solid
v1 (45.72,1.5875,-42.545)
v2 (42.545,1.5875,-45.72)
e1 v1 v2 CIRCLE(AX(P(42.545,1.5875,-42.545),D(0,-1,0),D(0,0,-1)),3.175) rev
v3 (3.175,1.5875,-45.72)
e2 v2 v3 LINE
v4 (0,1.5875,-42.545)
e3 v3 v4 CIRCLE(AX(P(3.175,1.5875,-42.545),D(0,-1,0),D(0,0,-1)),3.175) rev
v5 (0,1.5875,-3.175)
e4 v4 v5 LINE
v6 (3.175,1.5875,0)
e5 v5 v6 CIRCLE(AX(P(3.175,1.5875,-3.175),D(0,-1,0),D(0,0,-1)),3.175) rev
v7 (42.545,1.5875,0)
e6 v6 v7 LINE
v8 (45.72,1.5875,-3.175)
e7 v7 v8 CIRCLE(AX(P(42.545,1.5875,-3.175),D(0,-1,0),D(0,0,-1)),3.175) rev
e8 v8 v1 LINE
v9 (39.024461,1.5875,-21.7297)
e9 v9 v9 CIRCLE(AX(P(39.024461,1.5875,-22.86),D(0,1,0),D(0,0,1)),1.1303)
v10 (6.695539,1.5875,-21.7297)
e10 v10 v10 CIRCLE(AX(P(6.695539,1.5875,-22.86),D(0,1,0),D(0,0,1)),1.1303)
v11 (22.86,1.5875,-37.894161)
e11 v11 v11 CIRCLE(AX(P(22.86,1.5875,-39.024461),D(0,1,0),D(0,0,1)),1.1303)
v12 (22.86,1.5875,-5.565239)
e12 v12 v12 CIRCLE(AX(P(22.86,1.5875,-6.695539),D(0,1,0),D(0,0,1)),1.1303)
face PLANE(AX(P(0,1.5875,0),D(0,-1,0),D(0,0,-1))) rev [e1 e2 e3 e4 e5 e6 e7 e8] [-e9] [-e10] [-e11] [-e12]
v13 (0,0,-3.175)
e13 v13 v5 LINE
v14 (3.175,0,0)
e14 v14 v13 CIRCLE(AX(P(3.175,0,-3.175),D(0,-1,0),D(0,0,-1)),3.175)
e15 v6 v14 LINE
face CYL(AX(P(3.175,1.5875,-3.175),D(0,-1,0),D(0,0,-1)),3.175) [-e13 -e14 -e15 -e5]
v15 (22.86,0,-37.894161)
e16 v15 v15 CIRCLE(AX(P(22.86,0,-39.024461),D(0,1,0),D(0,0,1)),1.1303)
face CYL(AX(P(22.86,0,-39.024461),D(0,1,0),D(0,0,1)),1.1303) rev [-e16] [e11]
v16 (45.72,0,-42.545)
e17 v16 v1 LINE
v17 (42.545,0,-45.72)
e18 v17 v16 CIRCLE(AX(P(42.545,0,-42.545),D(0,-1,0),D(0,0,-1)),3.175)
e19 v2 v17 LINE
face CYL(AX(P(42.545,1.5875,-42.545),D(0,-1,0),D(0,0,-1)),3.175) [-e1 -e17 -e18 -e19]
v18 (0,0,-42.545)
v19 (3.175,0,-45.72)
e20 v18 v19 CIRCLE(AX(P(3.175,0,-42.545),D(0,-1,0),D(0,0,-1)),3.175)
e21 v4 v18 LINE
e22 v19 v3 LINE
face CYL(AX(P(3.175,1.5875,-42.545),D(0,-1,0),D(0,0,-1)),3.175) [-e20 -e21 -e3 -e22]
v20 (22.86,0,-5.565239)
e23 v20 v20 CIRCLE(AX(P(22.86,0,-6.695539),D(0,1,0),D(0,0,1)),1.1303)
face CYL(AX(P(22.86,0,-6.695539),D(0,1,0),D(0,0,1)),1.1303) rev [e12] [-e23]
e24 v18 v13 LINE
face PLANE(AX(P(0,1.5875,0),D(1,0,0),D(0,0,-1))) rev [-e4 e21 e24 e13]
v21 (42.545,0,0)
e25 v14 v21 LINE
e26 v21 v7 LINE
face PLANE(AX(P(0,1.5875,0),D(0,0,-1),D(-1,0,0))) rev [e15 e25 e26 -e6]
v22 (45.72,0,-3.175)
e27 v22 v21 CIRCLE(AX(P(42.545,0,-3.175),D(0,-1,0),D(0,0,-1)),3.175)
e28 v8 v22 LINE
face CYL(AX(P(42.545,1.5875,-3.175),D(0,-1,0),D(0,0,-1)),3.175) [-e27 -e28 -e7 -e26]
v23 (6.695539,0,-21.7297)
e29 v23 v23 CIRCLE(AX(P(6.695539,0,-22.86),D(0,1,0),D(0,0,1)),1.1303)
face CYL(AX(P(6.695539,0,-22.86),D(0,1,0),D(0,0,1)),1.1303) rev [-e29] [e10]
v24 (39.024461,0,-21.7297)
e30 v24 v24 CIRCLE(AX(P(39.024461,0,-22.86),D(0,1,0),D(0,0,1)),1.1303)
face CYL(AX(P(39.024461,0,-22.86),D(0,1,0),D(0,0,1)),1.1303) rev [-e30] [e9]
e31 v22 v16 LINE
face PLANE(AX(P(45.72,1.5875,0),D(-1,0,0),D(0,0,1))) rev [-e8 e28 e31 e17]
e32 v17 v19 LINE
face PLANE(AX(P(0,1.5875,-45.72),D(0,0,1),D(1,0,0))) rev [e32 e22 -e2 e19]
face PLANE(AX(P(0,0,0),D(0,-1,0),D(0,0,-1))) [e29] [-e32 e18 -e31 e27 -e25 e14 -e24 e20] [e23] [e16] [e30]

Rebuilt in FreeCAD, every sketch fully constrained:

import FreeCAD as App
import Part
import Sketcher
Q = App.Units.Quantity


def edges_at(feature, points):
    """Names of the edges that pass closest to the given points."""
    edges = feature.Shape.Edges
    near = lambda p: min(range(len(edges)), key=lambda i: edges[i].distToShape(Part.Vertex(*p))[0])
    return sorted({f"Edge{near(p) + 1}" for p in points})


def add_polygon(sketch, points):
    """Adds a closed chain of lines whose ends are joined by coincident constraints."""
    first, n = sketch.GeometryCount, len(points)
    for a, b in zip(points, points[1:] + points[:1]):
        sketch.addGeometry(Part.LineSegment(App.Vector(*a, 0), App.Vector(*b, 0)), False)
    for i in range(n):
        sketch.addConstraint(Sketcher.Constraint("Coincident", first + i, 2, first + (i + 1) % n, 1))

doc = App.newDocument("Part")
params = doc.addObject("Spreadsheet::Sheet", "Params")
for row, (alias, value) in enumerate([
    ("sketch1_width", "1.8 in"),
    ("pad1_length", "0.0625 in"),
    ("fillet_radius", "0.125 in"),
    ("sketch2_diameter", "0.089 in"),
], start=1):
    params.set(f"A{row}", alias)
    params.set(f"B{row}", "=" + value)
    params.setAlias(f"B{row}", alias)

body = doc.addObject("PartDesign::Body", "Body")

# Sketch on XZ plane
sketch1 = doc.addObject("Sketcher::SketchObject", "Sketch")
body.addObject(sketch1)
sketch1.AttachmentSupport = (doc.XZ_Plane, [""])
sketch1.MapMode = "FlatFace"
add_polygon(sketch1, [(0, -46), (0, 0), (46, 0), (46, -46)])  # lines 0-3
sketch1.addConstraint([
    Sketcher.Constraint("Vertical", 0),
    Sketcher.Constraint("Horizontal", 1),
    Sketcher.Constraint("Vertical", 2),
    Sketcher.Constraint("Horizontal", 3),
    Sketcher.Constraint("Coincident", 0, 2, -1, 1),
    Sketcher.Constraint("Equal", 3, 0),
    Sketcher.Constraint("DistanceX", 1, 1, 1, 2, Q("1.8 in")),
])
sketch1.setExpression("Constraints[10]", "Params.sketch1_width")
pad1 = doc.addObject("PartDesign::Pad", "Pad")
body.addObject(pad1)
pad1.Profile = sketch1
pad1.setExpression("Length", "Params.pad1_length")
pad1.Reversed = True
doc.recompute()

fillet = doc.addObject("PartDesign::Fillet", "Fillet")
body.addObject(fillet)
fillet.Base = (pad1, edges_at(pad1, [
    (0, 0.794, -45.72),
    (45.72, 0.794, -45.72),
    (45.72, 0.794, 0),
    (0, 0.794, 0),
]))
fillet.setExpression("Radius", "Params.fillet_radius")

# Sketch on XZ plane
sketch2 = doc.addObject("Sketcher::SketchObject", "Sketch001")
body.addObject(sketch2)
sketch2.AttachmentSupport = (doc.XZ_Plane, [""])
sketch2.MapMode = "FlatFace"
sketch2.AttachmentOffset = App.Placement(App.Vector(0, 0, -0.0625 * 25.4), App.Rotation())
sketch2.addGeometry([
    Part.Circle(App.Vector(39, -22.9, 0), App.Vector(0, 0, 1), 1.1),
    Part.Circle(App.Vector(22.9, -6.7, 0), App.Vector(0, 0, 1), 1.1),
    Part.Circle(App.Vector(6.7, -22.9, 0), App.Vector(0, 0, 1), 1.1),
    Part.Circle(App.Vector(22.9, -39, 0), App.Vector(0, 0, 1), 1.1),
], False)
sketch2.addConstraint([
    Sketcher.Constraint("Equal", 0, 1),
    Sketcher.Constraint("Equal", 1, 2),
    Sketcher.Constraint("Equal", 2, 3),
    Sketcher.Constraint("Horizontal", 0, 3, 2, 3),
    Sketcher.Constraint("Vertical", 1, 3, 3, 3),
    Sketcher.Constraint("Diameter", 0, Q("0.089 in")),
    Sketcher.Constraint("DistanceY", 0, 3, -1, 1, Q("0.9 in")),
    Sketcher.Constraint("DistanceX", -1, 1, 1, 3, Q("0.9 in")),
    Sketcher.Constraint("DistanceX", -1, 1, 0, 3, 39.024461),
    Sketcher.Constraint("DistanceY", 1, 3, -1, 1, 6.695539),
    Sketcher.Constraint("DistanceX", -1, 1, 2, 3, 6.695539),
    Sketcher.Constraint("DistanceY", 3, 3, -1, 1, 39.024461),
])
sketch2.setExpression("Constraints[5]", "Params.sketch2_diameter")
pocket1 = doc.addObject("PartDesign::Pocket", "Pocket")
body.addObject(pocket1)
pocket1.Profile = sketch2
pocket1.Type = "ThroughAll"
pocket1.Reversed = True

doc.recompute()
